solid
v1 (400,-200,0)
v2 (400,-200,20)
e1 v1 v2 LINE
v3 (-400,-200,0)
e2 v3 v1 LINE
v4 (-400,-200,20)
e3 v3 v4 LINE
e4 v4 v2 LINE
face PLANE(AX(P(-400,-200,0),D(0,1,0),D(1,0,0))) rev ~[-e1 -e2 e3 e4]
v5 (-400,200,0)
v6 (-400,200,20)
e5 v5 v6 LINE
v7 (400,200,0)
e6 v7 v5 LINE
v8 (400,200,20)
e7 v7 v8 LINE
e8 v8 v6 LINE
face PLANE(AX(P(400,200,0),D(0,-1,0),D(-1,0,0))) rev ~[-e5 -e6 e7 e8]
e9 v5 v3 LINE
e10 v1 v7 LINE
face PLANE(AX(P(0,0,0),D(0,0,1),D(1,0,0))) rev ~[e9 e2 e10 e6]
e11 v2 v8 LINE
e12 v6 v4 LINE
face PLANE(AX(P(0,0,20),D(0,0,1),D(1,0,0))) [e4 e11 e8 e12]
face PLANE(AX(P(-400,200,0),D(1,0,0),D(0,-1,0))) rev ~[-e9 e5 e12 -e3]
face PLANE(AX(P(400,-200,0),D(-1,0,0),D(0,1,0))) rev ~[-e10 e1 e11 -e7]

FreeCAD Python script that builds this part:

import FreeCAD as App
import Part
import Sketcher


def add_polygon(sketch, points):
    """Adds a closed chain of lines whose ends are joined by coincident constraints."""
    first, n = sketch.GeometryCount, len(points)
    for a, b in zip(points, points[1:] + points[:1]):
        sketch.addGeometry(Part.LineSegment(App.Vector(*a, 0), App.Vector(*b, 0)), False)
    for i in range(n):
        sketch.addConstraint(Sketcher.Constraint("Coincident", first + i, 2, first + (i + 1) % n, 1))

doc = App.newDocument("Part")
body = doc.addObject("PartDesign::Body", "Body")

# Sketch on XY plane
sketch1 = body.newObject("Sketcher::SketchObject", "Sketch")
sketch1.AttachmentSupport = (doc.getObject("XY_Plane"), [""])
sketch1.MapMode = "FlatFace"
add_polygon(sketch1, [(400, -200), (400, 200), (-400, 200), (-400, -200)])  # lines 0-3
sketch1.addConstraint([
    Sketcher.Constraint("Vertical", 0),
    Sketcher.Constraint("Horizontal", 1),
    Sketcher.Constraint("Vertical", 2),
    Sketcher.Constraint("Horizontal", 3),
    Sketcher.Constraint("Symmetric", 0, 2, 2, 2, -1, 1),
    Sketcher.Constraint("DistanceX", 1, 2, 1, 1, 800.0),
    Sketcher.Constraint("DistanceY", 0, 1, 0, 2, 400.0),
])
pad1 = body.newObject("PartDesign::Pad", "Pad")
pad1.Profile = sketch1
pad1.Length = 20

doc.recompute()
